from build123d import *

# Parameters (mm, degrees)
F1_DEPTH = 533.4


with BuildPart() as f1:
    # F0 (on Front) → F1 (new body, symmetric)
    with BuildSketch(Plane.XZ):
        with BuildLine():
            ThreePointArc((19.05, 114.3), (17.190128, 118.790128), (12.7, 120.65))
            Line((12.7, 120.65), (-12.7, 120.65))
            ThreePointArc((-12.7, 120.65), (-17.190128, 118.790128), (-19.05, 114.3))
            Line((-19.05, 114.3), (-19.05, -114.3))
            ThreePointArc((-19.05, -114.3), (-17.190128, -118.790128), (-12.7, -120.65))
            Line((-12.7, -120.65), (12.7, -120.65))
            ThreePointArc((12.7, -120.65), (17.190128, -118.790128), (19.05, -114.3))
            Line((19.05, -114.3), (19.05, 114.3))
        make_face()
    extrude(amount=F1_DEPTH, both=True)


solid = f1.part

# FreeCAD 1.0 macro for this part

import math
import FreeCAD as App
import Part
import Sketcher
Q = App.Units.Quantity

doc = App.newDocument("Part")
params = doc.addObject("Spreadsheet::Sheet", "Params")
for row, (alias, value) in enumerate([
    ("sketch1_width", "1 in"),
    ("sketch1_height", "9 in"),
    ("sketch1_radius", "0.25 in"),
    ("pad1_length", "42 in"),
], start=1):
    params.set(f"A{row}", alias)
    params.set(f"B{row}", "=" + value)
    params.setAlias(f"B{row}", alias)

body = doc.addObject("PartDesign::Body", "Body")

# Sketch on XZ plane
sketch1 = body.newObject("Sketcher::SketchObject", "Sketch")
sketch1.AttachmentSupport = (doc.getObject("XZ_Plane"), [""])
sketch1.MapMode = "FlatFace"
sketch1.addGeometry([
    Part.ArcOfCircle(Part.Circle(App.Vector(13, 114, 0), App.Vector(0, 0, 1), 6), math.radians(0), math.radians(90)),  # 0
    Part.LineSegment(App.Vector(13, 121, 0), App.Vector(-13, 121, 0)),  # 1
    Part.ArcOfCircle(Part.Circle(App.Vector(-13, 114, 0), App.Vector(0, 0, 1), 6), math.radians(90), math.radians(180)),  # 2
    Part.LineSegment(App.Vector(-19, 114, 0), App.Vector(-19, -114, 0)),  # 3
    Part.ArcOfCircle(Part.Circle(App.Vector(-13, -114, 0), App.Vector(0, 0, 1), 6), math.radians(-180), math.radians(-90)),  # 4
    Part.LineSegment(App.Vector(-13, -121, 0), App.Vector(13, -121, 0)),  # 5
    Part.ArcOfCircle(Part.Circle(App.Vector(13, -114, 0), App.Vector(0, 0, 1), 6), math.radians(-90), math.radians(0)),  # 6
    Part.LineSegment(App.Vector(19, -114, 0), App.Vector(19, 114, 0)),  # 7
], False)
sketch1.addConstraint([
    Sketcher.Constraint("Tangent", 0, 2, 1, 1),
    Sketcher.Constraint("Tangent", 1, 2, 2, 1),
    Sketcher.Constraint("Tangent", 2, 2, 3, 1),
    Sketcher.Constraint("Tangent", 3, 2, 4, 1),
    Sketcher.Constraint("Tangent", 4, 2, 5, 1),
    Sketcher.Constraint("Tangent", 5, 2, 6, 1),
    Sketcher.Constraint("Tangent", 6, 2, 7, 1),
    Sketcher.Constraint("Tangent", 7, 2, 0, 1),
    Sketcher.Constraint("Horizontal", 1),
    Sketcher.Constraint("Vertical", 3),
    Sketcher.Constraint("Horizontal", 5),
    Sketcher.Constraint("Vertical", 7),
    Sketcher.Constraint("Equal", 0, 2),
    Sketcher.Constraint("Equal", 2, 4),
    Sketcher.Constraint("Equal", 4, 6),
    Sketcher.Constraint("Symmetric", 0, 3, 4, 3, -1, 1),
    Sketcher.Constraint("DistanceX", 1, 2, 1, 1, Q("1 in")),
    Sketcher.Constraint("DistanceY", 3, 2, 3, 1, Q("9 in")),
    Sketcher.Constraint("Radius", 0, Q("0.25 in")),
])
sketch1.setExpression("Constraints[16]", "Params.sketch1_width")
sketch1.setExpression("Constraints[17]", "Params.sketch1_height")
sketch1.setExpression("Constraints[18]", "Params.sketch1_radius")
pad1 = body.newObject("PartDesign::Pad", "Pad")
pad1.Profile = sketch1
pad1.setExpression("Length", "Params.pad1_length")
pad1.Midplane = True

doc.recompute()
